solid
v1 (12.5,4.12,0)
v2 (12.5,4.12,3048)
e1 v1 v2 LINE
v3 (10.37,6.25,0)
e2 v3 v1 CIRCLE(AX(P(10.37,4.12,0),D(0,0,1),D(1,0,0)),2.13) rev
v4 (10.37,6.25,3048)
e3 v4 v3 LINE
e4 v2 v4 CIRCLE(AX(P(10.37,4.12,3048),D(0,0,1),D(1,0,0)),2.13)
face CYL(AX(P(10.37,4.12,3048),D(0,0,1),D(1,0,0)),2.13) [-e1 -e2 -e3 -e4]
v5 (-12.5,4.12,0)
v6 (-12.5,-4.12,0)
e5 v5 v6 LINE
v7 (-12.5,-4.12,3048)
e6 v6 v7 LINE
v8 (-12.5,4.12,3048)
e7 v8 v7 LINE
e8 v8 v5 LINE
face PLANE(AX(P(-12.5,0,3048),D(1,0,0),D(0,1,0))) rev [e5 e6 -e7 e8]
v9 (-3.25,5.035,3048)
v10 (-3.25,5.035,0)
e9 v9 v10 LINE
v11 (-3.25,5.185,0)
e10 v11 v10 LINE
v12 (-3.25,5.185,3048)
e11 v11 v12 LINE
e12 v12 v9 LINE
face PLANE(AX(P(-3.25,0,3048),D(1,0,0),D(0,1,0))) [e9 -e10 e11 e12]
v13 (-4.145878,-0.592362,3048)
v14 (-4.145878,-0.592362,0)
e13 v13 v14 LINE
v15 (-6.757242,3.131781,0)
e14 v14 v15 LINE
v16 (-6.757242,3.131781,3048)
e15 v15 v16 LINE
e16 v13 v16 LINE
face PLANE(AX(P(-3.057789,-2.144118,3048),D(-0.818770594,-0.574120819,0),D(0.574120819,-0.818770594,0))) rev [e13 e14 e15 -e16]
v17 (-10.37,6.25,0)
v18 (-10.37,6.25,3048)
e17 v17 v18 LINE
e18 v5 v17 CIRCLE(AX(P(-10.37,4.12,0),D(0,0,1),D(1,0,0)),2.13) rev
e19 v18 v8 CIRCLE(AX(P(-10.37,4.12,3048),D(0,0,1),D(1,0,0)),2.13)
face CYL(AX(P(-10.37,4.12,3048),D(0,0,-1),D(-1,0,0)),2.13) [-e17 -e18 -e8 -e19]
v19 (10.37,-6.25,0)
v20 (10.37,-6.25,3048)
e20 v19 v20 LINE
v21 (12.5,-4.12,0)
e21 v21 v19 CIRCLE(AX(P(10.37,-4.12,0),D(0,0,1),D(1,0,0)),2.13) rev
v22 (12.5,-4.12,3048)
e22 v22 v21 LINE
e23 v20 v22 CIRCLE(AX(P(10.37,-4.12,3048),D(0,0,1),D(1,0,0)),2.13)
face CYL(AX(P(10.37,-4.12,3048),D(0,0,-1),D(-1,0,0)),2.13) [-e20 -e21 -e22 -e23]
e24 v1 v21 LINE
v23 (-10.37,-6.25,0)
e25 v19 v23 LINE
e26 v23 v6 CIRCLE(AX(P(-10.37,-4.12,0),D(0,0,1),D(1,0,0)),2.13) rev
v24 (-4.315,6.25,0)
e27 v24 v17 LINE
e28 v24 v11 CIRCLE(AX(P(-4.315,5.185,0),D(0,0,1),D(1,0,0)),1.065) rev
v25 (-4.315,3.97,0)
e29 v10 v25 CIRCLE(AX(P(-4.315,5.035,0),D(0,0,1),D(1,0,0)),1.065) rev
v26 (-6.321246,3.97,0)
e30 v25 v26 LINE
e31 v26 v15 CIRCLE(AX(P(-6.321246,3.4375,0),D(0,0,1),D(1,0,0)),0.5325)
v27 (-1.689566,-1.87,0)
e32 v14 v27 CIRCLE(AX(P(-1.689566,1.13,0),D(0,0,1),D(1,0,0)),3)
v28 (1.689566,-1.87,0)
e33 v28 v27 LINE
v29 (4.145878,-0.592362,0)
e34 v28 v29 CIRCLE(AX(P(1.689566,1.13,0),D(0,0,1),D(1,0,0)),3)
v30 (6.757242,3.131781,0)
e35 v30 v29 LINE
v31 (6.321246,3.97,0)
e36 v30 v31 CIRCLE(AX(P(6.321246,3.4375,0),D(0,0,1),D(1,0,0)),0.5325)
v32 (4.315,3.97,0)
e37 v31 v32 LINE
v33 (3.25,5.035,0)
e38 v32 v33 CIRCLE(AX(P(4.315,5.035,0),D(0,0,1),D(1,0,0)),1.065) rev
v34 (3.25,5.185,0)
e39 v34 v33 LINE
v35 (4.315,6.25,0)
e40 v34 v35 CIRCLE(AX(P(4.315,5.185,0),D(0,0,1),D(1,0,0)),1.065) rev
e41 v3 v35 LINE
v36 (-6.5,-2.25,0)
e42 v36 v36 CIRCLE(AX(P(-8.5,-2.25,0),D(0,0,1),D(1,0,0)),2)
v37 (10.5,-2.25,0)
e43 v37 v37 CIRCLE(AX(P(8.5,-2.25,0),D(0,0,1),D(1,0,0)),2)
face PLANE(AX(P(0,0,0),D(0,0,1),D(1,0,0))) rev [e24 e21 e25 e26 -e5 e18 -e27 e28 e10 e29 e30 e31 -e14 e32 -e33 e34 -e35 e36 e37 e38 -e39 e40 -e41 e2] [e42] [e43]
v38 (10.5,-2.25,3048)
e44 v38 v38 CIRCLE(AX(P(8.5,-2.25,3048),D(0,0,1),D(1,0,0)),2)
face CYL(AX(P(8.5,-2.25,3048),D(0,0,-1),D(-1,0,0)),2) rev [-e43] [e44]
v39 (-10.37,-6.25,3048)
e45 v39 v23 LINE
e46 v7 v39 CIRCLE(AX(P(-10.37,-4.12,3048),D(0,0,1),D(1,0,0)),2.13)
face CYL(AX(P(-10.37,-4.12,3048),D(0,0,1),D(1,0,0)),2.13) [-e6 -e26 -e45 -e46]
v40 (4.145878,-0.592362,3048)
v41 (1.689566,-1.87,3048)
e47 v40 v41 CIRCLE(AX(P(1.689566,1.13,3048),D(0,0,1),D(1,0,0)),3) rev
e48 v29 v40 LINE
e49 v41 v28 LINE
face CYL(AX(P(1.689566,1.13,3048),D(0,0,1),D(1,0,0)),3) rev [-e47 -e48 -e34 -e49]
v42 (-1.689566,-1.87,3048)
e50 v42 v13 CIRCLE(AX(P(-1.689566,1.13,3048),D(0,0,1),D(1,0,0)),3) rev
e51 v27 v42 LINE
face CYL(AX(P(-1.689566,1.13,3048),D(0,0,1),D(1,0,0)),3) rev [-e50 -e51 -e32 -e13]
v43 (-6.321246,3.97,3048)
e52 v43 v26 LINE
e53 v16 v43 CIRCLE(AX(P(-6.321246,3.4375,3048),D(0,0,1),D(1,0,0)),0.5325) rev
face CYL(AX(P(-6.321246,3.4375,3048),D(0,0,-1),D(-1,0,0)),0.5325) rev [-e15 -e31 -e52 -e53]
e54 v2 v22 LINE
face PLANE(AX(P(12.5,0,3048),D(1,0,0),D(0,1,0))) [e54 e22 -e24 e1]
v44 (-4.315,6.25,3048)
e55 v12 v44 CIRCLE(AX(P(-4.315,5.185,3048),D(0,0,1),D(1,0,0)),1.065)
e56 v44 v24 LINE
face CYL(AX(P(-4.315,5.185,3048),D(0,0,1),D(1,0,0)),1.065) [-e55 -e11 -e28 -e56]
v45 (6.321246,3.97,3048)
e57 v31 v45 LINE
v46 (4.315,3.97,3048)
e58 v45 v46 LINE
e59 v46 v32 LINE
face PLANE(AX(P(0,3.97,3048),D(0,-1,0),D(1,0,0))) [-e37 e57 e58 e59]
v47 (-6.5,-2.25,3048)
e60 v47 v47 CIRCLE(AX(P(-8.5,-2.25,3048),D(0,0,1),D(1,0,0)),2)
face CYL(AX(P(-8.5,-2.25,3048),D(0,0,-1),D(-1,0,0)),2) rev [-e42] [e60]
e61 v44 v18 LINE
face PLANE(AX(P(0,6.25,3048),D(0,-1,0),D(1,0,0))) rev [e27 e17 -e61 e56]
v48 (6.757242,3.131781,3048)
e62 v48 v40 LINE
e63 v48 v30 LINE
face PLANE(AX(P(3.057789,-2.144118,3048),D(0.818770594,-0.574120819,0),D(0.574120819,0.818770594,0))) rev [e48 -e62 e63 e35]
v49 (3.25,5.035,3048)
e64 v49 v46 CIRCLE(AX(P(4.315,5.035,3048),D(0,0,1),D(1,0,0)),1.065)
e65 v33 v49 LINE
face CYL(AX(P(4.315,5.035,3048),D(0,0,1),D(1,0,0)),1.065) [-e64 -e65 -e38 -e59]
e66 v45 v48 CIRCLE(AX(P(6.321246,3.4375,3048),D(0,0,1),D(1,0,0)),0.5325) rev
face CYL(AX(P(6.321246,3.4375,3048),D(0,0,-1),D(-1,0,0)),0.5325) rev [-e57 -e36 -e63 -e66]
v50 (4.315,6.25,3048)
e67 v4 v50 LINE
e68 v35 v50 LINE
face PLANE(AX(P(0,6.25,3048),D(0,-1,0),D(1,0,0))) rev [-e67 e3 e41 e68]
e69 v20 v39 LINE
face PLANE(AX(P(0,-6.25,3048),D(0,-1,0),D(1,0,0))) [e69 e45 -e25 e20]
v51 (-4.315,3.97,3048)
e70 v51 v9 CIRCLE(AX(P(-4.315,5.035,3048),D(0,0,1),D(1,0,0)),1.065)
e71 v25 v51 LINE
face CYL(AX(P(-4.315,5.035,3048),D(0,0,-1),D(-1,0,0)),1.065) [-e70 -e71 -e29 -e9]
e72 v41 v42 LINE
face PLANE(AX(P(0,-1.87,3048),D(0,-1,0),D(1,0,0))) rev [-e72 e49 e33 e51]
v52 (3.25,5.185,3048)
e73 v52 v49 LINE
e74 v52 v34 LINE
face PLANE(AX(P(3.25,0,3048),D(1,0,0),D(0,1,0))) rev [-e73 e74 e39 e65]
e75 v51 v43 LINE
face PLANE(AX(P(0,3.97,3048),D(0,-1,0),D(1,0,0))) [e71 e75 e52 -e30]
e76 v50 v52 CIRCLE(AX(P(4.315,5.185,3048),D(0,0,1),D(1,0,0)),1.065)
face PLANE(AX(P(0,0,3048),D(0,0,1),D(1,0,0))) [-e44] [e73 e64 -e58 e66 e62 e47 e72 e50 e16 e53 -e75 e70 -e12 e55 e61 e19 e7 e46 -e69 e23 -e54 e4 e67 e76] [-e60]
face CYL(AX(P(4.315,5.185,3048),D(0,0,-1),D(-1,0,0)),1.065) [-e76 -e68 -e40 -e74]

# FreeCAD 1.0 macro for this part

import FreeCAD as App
import Part
import Sketcher


def edges_at(feature, points):
    """Names of the edges that pass closest to the given points."""
    edges = feature.Shape.Edges
    near = lambda p: min(range(len(edges)), key=lambda i: edges[i].distToShape(Part.Vertex(*p))[0])
    return sorted({f"Edge{near(p) + 1}" for p in points})


def add_polygon(sketch, points):
    """Adds a closed chain of lines whose ends are joined by coincident constraints."""
    first, n = sketch.GeometryCount, len(points)
    for a, b in zip(points, points[1:] + points[:1]):
        sketch.addGeometry(Part.LineSegment(App.Vector(*a, 0), App.Vector(*b, 0)), False)
    for i in range(n):
        sketch.addConstraint(Sketcher.Constraint("Coincident", first + i, 2, first + (i + 1) % n, 1))

doc = App.newDocument("Part")
body = doc.addObject("PartDesign::Body", "Body")

# Sketch on XY plane
sketch1 = body.newObject("Sketcher::SketchObject", "Sketch")
sketch1.AttachmentSupport = (doc.getObject("XY_Plane"), [""])
sketch1.MapMode = "FlatFace"
add_polygon(sketch1, [(7.3, 4), (3.2, -1.9), (-3.2, -1.9), (-7.3, 4), (-3.2, 4), (-3.2, 6.2), (-12.5, 6.2), (-12.5, -6.2), (12.5, -6.2), (12.5, 6.2), (3.2, 6.2), (3.2, 4)])  # lines 0-11
sketch1.addGeometry(Part.Circle(App.Vector(-8.5, -2.2, 0), App.Vector(0, 0, 1), 2), False)  # 12
sketch1.addGeometry(Part.Circle(App.Vector(8.5, -2.2, 0), App.Vector(0, 0, 1), 2), False)  # 13
sketch1.addConstraint([
    Sketcher.Constraint("Horizontal", 1),
    Sketcher.Constraint("Horizontal", 3),
    Sketcher.Constraint("Vertical", 4),
    Sketcher.Constraint("Horizontal", 5),
    Sketcher.Constraint("Vertical", 6),
    Sketcher.Constraint("Horizontal", 7),
    Sketcher.Constraint("Vertical", 8),
    Sketcher.Constraint("Horizontal", 9),
    Sketcher.Constraint("Vertical", 10),
    Sketcher.Constraint("Horizontal", 11),
    Sketcher.Constraint("Equal", 12, 13),
    Sketcher.Constraint("Symmetric", 5, 2, 7, 2, -1, 1),
    Sketcher.Constraint("Symmetric", 12, 3, 13, 3, -2),
    Sketcher.Constraint("Symmetric", 4, 2, 9, 2, -2),
    Sketcher.Constraint("Symmetric", 2, 2, 11, 2, -2),
    Sketcher.Constraint("Vertical", 1, 2, 3, 2),
    Sketcher.Constraint("Vertical", 0, 2, 9, 2),
    Sketcher.Constraint("Diameter", 12, 4.0),
    Sketcher.Constraint("DistanceX", 7, 1, 7, 2, 25.0),
    Sketcher.Constraint("DistanceX", 1, 2, 1, 1, 6.5),
    Sketcher.Constraint("DistanceY", 6, 2, 6, 1, 12.5),
    Sketcher.Constraint("DistanceX", 12, 3, 13, 3, 17.0),
    Sketcher.Constraint("DistanceY", 6, 2, 12, 3, 4.0),
    Sketcher.Constraint("DistanceY", 4, 1, 4, 2, 2.28),
    Sketcher.Constraint("DistanceX", 3, 1, 3, 2, 4.095),
    Sketcher.Constraint("DistanceY", 0, 2, -1, 1, 1.87),
])
pad1 = body.newObject("PartDesign::Pad", "Pad")
pad1.Profile = sketch1
pad1.Length = 3048
doc.recompute()

fillet = body.newObject("PartDesign::Fillet", "Fillet")
fillet.Base = (pad1, edges_at(pad1, [
    (3.25, 3.97, 1524),
    (3.25, 6.25, 1524),
    (-3.25, 6.25, 1524),
    (-3.25, 3.97, 1524),
]))
fillet.Radius = 1.065
doc.recompute()

fillet2 = body.newObject("PartDesign::Fillet", "Fillet001")
fillet2.Base = (fillet, edges_at(fillet, [(12.5, 6.25, 1524)]))
fillet2.Radius = 2.13
doc.recompute()

fillet3 = body.newObject("PartDesign::Fillet", "Fillet002")
fillet3.Base = (fillet2, edges_at(fillet2, [(12.5, -6.25, 1524), (-12.5, -6.25, 1524), (-12.5, 6.25, 1524)]))
fillet3.Radius = 2.13
doc.recompute()

fillet4 = body.newObject("PartDesign::Fillet", "Fillet003")
fillet4.Base = (fillet3, edges_at(fillet3, [(7.345, 3.97, 1524)]))
fillet4.Radius = 0.5325
doc.recompute()

fillet5 = body.newObject("PartDesign::Fillet", "Fillet004")
fillet5.Base = (fillet4, edges_at(fillet4, [(-7.345, 3.97, 1524)]))
fillet5.Radius = 0.5325
doc.recompute()

fillet6 = body.newObject("PartDesign::Fillet", "Fillet005")
fillet6.Base = (fillet5, edges_at(fillet5, [(-3.25, -1.87, 1524)]))
fillet6.Radius = 3
doc.recompute()

fillet7 = body.newObject("PartDesign::Fillet", "Fillet006")
fillet7.Base = (fillet6, edges_at(fillet6, [(3.25, -1.87, 1524)]))
fillet7.Radius = 3

doc.recompute()
